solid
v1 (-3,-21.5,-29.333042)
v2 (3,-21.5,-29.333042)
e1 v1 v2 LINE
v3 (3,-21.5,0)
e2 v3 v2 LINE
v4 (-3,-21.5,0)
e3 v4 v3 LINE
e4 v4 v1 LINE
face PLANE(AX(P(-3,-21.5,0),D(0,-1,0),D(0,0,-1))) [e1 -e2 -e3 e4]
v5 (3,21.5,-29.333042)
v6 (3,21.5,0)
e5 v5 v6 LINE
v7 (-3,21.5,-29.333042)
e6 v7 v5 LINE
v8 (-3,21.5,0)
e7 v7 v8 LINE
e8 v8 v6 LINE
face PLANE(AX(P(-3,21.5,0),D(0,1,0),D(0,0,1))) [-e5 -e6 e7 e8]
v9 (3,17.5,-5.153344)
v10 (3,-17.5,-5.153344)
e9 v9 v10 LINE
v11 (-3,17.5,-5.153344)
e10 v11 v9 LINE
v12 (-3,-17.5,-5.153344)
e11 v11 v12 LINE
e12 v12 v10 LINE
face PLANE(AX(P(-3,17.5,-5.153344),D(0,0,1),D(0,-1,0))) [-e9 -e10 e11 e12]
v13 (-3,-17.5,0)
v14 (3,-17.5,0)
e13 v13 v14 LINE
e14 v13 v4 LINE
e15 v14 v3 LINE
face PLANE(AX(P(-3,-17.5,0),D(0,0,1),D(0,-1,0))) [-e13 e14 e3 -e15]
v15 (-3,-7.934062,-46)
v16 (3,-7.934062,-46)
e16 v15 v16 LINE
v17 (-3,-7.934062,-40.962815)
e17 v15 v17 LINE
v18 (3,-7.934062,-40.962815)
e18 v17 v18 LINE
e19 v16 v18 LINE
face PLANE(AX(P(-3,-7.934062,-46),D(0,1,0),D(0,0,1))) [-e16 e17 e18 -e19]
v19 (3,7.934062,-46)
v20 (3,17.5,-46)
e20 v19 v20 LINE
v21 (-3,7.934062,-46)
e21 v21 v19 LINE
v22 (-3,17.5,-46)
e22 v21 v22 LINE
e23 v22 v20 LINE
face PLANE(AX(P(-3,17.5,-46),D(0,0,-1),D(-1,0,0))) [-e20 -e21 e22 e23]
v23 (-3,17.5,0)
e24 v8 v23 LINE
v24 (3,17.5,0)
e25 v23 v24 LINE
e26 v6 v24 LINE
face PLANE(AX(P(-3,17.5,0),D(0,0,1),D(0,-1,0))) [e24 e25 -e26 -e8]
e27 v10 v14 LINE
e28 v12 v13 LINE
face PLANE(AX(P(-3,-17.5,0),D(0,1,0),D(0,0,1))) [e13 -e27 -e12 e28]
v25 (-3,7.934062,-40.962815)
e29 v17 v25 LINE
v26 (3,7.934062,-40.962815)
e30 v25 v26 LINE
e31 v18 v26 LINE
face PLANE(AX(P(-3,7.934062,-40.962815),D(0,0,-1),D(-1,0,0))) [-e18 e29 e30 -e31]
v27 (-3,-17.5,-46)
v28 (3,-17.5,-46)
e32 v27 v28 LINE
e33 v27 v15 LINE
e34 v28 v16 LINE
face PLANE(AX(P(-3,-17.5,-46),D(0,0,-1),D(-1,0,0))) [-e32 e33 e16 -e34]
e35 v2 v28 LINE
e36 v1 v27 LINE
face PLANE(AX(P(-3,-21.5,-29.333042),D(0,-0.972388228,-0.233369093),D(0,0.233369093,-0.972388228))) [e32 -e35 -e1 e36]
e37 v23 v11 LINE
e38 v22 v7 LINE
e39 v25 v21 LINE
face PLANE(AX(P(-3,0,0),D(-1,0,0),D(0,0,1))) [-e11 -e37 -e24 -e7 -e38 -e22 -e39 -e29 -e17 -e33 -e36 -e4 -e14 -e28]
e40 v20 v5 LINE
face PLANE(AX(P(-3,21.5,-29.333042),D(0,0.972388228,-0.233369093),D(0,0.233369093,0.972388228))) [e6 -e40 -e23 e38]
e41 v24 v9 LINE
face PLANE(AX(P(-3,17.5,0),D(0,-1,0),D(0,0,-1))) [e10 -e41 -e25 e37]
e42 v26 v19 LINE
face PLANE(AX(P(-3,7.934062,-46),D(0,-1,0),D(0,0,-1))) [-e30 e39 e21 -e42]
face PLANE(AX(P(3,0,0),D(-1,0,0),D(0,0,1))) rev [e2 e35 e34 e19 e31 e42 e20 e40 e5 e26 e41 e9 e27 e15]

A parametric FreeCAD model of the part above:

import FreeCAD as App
import Part
import Sketcher

doc = App.newDocument("Part")
body = doc.addObject("PartDesign::Body", "Body")

# Sketch on YZ plane
sketch1 = body.newObject("Sketcher::SketchObject", "Sketch")
sketch1.AttachmentSupport = (doc.getObject("YZ_Plane"), [""])
sketch1.MapMode = "FlatFace"
sketch1.addGeometry(Part.LineSegment(App.Vector(21.5, 0, 0), App.Vector(17.5, 0, 0)), False)
sketch1.addGeometry(Part.LineSegment(App.Vector(17.5, 0, 0), App.Vector(17.5, -5.2, 0)), False)
sketch1.addGeometry(Part.LineSegment(App.Vector(17.5, -5.2, 0), App.Vector(-17.5, -5.2, 0)), False)
sketch1.addGeometry(Part.LineSegment(App.Vector(-17.5, -5.2, 0), App.Vector(-17.5, 0, 0)), False)
sketch1.addGeometry(Part.LineSegment(App.Vector(-17.5, 0, 0), App.Vector(-21.5, 0, 0)), False)
sketch1.addGeometry(Part.LineSegment(App.Vector(-21.5, 0, 0), App.Vector(-21.5, -29.3, 0)), False)
sketch1.addGeometry(Part.LineSegment(App.Vector(-21.5, -29.3, 0), App.Vector(-17.5, -46, 0)), False)
sketch1.addGeometry(Part.LineSegment(App.Vector(-17.5, -46, 0), App.Vector(-7.9, -46, 0)), False)
sketch1.addGeometry(Part.LineSegment(App.Vector(-7.9, -46, 0), App.Vector(-7.9, -41, 0)), False)
sketch1.addGeometry(Part.LineSegment(App.Vector(-7.9, -41, 0), App.Vector(7.9, -41, 0)), False)
sketch1.addGeometry(Part.LineSegment(App.Vector(7.9, -41, 0), App.Vector(7.9, -46, 0)), False)
sketch1.addGeometry(Part.LineSegment(App.Vector(7.9, -46, 0), App.Vector(17.5, -46, 0)), False)
sketch1.addGeometry(Part.LineSegment(App.Vector(17.5, -46, 0), App.Vector(21.5, -29.3, 0)), False)
sketch1.addGeometry(Part.LineSegment(App.Vector(21.5, -29.3, 0), App.Vector(21.5, 0, 0)), False)
sketch1.addConstraint(Sketcher.Constraint("Coincident", 0, 2, 1, 1))
sketch1.addConstraint(Sketcher.Constraint("Coincident", 1, 2, 2, 1))
sketch1.addConstraint(Sketcher.Constraint("Coincident", 2, 2, 3, 1))
sketch1.addConstraint(Sketcher.Constraint("Coincident", 3, 2, 4, 1))
sketch1.addConstraint(Sketcher.Constraint("Coincident", 4, 2, 5, 1))
sketch1.addConstraint(Sketcher.Constraint("Coincident", 5, 2, 6, 1))
sketch1.addConstraint(Sketcher.Constraint("Coincident", 6, 2, 7, 1))
sketch1.addConstraint(Sketcher.Constraint("Coincident", 7, 2, 8, 1))
sketch1.addConstraint(Sketcher.Constraint("Coincident", 8, 2, 9, 1))
sketch1.addConstraint(Sketcher.Constraint("Coincident", 9, 2, 10, 1))
sketch1.addConstraint(Sketcher.Constraint("Coincident", 10, 2, 11, 1))
sketch1.addConstraint(Sketcher.Constraint("Coincident", 11, 2, 12, 1))
sketch1.addConstraint(Sketcher.Constraint("Coincident", 12, 2, 13, 1))
sketch1.addConstraint(Sketcher.Constraint("Coincident", 13, 2, 0, 1))
sketch1.addConstraint(Sketcher.Constraint("Horizontal", 0))
sketch1.addConstraint(Sketcher.Constraint("Vertical", 1))
sketch1.addConstraint(Sketcher.Constraint("Horizontal", 2))
sketch1.addConstraint(Sketcher.Constraint("Vertical", 3))
sketch1.addConstraint(Sketcher.Constraint("Horizontal", 4))
sketch1.addConstraint(Sketcher.Constraint("Vertical", 5))
sketch1.addConstraint(Sketcher.Constraint("Horizontal", 7))
sketch1.addConstraint(Sketcher.Constraint("Vertical", 8))
sketch1.addConstraint(Sketcher.Constraint("Horizontal", 9))
sketch1.addConstraint(Sketcher.Constraint("Vertical", 10))
sketch1.addConstraint(Sketcher.Constraint("Horizontal", 11))
sketch1.addConstraint(Sketcher.Constraint("Vertical", 13))
sketch1.addConstraint(Sketcher.Constraint("Symmetric", 0, 2, 3, 2, -1, 1))
sketch1.addConstraint(Sketcher.Constraint("Symmetric", 7, 2, 10, 2, -2))
sketch1.addConstraint(Sketcher.Constraint("Symmetric", 5, 2, 12, 2, -2))
sketch1.addConstraint(Sketcher.Constraint("PointOnObject", 0, 2, -1))
sketch1.addConstraint(Sketcher.Constraint("Vertical", 3, 2, 6, 2))
sketch1.addConstraint(Sketcher.Constraint("Vertical", 1, 2, 11, 2))
sketch1.addConstraint(Sketcher.Constraint("DistanceX", 0, 2, 0, 1, 4.0))
sketch1.addConstraint(Sketcher.Constraint("DistanceX", 2, 2, 2, 1, 35.0))
sketch1.addConstraint(Sketcher.Constraint("DistanceY", 6, 2, -1, 1, 46.0))
sketch1.addConstraint(Sketcher.Constraint("DistanceX", 7, 1, 7, 2, 9.565938))
sketch1.addConstraint(Sketcher.Constraint("DistanceY", 5, 2, 5, 1, 29.333042))
sketch1.addConstraint(Sketcher.Constraint("DistanceY", 5, 2, 2, 2, 24.179698))
sketch1.addConstraint(Sketcher.Constraint("DistanceY", 8, 1, 8, 2, 5.037185))
pad1 = body.newObject("PartDesign::Pad", "Pad")
pad1.Profile = sketch1
pad1.Type = "TwoLengths"
pad1.Length = 3
pad1.Length2 = 3

doc.recompute()
